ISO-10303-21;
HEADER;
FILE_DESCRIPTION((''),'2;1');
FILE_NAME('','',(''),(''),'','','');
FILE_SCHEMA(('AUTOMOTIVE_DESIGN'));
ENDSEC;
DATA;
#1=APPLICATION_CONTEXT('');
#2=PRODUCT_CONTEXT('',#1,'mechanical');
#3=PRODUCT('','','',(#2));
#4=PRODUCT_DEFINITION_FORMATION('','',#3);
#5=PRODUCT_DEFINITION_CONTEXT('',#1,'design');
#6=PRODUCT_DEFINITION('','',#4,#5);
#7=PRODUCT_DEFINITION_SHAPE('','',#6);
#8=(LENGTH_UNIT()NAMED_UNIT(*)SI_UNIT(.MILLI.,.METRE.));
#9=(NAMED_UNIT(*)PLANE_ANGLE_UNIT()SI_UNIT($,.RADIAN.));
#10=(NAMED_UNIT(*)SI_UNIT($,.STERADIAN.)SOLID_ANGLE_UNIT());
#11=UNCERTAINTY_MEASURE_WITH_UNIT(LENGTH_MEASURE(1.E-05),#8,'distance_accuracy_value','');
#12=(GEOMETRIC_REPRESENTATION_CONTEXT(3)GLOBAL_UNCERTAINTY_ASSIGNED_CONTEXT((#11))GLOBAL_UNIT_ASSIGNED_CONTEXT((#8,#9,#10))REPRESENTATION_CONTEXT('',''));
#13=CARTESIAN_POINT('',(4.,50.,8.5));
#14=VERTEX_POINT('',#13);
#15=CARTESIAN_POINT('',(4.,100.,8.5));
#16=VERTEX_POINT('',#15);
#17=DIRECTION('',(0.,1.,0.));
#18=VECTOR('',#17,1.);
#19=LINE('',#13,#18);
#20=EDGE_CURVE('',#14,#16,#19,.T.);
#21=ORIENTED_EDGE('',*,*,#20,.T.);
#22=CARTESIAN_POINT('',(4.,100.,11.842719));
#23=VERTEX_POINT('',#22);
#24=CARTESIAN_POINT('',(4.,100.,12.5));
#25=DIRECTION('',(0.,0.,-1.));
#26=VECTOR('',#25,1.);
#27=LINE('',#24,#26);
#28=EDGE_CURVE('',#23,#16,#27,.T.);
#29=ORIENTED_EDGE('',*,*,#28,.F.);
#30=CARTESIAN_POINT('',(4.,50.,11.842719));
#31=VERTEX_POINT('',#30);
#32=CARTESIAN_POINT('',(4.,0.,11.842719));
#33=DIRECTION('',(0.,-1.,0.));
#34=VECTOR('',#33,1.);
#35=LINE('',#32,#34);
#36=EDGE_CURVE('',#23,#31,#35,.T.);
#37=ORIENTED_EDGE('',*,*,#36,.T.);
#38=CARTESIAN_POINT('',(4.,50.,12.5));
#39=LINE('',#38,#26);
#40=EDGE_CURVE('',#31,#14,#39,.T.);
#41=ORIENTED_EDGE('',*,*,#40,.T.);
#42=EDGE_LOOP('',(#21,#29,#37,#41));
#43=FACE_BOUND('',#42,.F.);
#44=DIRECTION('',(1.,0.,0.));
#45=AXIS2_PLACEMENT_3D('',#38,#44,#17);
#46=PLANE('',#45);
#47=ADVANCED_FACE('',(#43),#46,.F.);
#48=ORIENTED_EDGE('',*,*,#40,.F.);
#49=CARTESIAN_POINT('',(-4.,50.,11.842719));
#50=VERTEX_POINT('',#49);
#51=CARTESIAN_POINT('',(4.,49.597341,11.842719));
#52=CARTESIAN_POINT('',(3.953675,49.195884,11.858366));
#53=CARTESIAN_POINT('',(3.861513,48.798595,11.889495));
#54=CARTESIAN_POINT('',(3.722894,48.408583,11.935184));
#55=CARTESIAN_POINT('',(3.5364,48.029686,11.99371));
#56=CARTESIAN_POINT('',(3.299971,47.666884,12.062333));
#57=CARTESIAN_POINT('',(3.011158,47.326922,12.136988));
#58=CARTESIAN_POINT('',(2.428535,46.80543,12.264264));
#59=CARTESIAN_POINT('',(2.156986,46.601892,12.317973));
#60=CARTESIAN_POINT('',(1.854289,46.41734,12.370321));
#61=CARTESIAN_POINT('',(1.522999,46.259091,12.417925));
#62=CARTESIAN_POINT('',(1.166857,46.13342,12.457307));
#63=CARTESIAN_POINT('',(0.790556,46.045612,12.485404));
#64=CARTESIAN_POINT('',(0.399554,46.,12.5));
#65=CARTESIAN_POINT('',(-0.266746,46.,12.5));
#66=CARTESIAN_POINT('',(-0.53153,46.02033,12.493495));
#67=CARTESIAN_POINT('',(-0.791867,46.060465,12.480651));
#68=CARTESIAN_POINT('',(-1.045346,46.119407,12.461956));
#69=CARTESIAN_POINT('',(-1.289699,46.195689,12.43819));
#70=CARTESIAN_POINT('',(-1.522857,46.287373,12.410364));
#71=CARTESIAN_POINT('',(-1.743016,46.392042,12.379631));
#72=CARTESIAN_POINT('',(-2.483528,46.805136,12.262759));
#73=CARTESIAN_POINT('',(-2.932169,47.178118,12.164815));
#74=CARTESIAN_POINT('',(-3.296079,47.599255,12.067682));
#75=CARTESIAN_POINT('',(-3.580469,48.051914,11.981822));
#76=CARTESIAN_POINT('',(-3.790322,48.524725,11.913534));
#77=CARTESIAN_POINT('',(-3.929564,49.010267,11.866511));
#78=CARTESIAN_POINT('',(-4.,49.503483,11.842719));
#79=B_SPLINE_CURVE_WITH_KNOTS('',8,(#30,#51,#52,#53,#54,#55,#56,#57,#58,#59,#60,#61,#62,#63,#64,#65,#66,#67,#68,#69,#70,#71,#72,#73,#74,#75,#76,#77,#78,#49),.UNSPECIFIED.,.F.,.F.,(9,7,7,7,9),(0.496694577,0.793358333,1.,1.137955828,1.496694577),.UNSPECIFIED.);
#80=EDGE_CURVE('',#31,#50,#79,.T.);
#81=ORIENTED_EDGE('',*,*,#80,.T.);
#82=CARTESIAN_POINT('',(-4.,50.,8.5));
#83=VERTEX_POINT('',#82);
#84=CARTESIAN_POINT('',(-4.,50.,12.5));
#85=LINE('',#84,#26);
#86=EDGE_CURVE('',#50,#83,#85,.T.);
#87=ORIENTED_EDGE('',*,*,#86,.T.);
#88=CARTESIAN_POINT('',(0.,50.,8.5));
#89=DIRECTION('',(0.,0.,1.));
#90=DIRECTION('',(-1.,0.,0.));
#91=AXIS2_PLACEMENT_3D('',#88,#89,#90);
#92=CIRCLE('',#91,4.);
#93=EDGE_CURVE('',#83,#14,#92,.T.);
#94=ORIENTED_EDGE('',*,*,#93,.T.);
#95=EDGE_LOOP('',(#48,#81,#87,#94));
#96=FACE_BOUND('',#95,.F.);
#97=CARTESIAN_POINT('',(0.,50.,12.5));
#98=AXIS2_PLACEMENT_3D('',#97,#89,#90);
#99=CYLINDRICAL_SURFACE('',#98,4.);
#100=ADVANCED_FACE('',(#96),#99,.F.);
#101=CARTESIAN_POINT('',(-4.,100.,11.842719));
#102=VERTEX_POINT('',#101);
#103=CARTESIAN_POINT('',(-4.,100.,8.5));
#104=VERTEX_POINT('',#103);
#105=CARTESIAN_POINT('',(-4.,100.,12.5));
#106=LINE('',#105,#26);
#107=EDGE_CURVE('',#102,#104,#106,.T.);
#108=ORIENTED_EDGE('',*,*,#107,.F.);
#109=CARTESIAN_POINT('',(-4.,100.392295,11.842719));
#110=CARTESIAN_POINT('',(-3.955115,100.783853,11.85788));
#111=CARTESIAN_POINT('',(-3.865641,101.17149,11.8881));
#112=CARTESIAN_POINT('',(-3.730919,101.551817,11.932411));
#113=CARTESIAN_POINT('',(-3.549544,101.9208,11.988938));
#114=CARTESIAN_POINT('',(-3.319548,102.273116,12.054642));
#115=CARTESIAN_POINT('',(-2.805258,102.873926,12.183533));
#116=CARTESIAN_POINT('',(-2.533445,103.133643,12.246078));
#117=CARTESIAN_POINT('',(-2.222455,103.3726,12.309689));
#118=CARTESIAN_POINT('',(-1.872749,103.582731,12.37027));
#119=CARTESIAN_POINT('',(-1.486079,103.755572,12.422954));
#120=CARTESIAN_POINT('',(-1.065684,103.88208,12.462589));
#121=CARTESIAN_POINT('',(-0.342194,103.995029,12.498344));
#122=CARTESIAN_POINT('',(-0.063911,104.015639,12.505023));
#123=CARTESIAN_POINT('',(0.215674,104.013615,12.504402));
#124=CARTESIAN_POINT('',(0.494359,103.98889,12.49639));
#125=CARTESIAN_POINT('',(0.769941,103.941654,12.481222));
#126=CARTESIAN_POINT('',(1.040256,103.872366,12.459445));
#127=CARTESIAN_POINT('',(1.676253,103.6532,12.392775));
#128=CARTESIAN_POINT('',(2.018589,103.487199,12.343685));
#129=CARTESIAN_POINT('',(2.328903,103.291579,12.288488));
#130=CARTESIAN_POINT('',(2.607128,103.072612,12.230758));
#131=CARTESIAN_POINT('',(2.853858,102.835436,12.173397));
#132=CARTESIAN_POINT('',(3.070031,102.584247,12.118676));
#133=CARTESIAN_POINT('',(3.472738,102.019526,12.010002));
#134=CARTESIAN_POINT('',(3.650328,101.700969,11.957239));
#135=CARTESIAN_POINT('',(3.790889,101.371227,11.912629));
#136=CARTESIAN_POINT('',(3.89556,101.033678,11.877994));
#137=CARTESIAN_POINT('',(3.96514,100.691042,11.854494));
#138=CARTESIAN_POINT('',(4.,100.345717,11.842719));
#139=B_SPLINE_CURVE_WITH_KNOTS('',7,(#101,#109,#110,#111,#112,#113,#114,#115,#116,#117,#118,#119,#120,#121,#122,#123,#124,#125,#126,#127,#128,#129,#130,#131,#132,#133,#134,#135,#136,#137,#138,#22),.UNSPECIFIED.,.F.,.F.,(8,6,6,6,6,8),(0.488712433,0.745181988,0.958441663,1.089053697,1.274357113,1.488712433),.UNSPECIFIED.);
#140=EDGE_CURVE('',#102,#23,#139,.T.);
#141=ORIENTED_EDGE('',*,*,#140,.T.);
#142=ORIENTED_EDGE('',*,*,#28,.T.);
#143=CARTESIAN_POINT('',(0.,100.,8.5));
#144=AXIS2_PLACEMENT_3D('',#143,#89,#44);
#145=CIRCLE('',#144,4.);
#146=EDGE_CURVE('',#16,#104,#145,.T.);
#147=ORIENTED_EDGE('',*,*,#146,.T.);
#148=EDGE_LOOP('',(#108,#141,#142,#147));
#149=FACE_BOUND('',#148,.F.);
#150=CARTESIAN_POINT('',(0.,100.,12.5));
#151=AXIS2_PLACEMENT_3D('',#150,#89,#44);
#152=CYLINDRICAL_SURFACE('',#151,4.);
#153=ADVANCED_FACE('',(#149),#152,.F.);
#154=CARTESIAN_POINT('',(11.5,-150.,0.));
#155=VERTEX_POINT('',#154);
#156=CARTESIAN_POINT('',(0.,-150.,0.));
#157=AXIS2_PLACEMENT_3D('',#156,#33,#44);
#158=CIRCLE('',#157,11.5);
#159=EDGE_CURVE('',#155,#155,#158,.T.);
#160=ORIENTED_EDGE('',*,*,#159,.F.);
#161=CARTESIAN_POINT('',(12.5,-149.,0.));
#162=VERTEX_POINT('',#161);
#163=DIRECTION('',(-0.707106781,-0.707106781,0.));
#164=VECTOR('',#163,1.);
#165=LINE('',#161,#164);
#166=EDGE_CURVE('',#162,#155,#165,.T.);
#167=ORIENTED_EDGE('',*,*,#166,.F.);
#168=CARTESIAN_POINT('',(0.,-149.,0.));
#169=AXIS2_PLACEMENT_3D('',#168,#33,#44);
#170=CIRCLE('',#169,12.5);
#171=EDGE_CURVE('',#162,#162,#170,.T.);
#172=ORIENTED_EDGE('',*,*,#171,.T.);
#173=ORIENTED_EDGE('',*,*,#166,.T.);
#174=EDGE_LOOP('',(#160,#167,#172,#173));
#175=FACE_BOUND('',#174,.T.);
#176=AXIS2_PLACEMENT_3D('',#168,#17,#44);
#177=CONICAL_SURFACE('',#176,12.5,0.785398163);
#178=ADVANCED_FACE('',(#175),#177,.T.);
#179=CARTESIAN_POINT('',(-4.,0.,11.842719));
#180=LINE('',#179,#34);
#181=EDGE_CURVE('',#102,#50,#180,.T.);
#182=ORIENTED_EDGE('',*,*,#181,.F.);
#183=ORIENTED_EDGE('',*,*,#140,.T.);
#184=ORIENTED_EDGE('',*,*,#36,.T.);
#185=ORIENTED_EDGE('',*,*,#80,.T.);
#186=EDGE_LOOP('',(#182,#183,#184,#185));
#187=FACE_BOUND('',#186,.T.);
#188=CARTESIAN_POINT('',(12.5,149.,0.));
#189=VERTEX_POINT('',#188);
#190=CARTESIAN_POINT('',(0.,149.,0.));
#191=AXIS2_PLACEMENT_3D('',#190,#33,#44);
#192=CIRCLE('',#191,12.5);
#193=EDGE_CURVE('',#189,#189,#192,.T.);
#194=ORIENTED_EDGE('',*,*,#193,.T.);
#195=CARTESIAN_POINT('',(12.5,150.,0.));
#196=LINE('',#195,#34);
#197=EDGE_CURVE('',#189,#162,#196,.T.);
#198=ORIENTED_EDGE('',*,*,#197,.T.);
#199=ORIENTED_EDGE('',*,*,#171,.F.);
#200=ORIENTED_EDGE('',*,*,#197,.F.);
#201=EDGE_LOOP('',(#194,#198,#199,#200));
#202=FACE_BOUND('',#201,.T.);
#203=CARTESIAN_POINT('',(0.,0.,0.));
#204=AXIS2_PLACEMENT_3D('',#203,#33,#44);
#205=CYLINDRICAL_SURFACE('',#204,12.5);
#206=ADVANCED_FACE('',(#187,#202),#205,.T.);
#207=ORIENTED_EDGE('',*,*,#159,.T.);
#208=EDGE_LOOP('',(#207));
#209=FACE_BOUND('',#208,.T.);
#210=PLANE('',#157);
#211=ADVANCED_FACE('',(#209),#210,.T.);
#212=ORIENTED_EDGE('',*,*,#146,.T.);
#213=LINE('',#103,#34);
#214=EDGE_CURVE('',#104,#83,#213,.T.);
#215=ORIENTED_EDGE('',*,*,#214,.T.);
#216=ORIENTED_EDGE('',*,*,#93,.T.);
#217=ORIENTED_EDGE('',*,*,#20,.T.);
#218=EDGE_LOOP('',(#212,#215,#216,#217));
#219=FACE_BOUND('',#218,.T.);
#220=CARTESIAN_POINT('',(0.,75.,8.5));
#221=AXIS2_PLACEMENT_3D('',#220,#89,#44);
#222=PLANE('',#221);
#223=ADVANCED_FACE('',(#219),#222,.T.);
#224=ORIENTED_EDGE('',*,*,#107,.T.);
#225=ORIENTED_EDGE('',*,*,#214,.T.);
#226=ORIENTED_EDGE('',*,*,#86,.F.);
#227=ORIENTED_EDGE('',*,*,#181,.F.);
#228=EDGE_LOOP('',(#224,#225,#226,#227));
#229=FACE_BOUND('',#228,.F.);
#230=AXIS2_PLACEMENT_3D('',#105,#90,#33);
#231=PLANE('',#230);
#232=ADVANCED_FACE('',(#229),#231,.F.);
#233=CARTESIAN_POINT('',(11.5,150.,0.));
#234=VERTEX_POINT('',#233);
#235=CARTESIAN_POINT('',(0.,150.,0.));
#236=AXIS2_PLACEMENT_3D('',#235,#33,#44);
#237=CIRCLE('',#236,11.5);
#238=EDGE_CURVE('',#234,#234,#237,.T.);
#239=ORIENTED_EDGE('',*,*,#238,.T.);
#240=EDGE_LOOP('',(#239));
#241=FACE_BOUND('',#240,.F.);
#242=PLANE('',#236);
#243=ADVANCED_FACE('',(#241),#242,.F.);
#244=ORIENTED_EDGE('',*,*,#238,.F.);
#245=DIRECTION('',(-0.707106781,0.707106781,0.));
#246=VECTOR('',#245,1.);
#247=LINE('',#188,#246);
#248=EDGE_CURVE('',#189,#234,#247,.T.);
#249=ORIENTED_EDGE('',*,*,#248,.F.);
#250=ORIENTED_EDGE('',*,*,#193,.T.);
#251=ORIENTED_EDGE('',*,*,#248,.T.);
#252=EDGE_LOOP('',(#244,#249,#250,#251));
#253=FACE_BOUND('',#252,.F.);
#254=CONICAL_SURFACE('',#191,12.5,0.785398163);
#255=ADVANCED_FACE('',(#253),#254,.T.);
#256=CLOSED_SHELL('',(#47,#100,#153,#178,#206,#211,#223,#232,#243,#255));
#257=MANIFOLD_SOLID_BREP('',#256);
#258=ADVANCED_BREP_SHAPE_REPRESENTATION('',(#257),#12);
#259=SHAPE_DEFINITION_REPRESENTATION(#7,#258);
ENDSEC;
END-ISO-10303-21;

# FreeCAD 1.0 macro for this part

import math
import FreeCAD as App
import Part
import Sketcher
from FreeCAD import Vector
Q = App.Units.Quantity


def edges_at(feature, points):
    """Names of the edges that pass closest to the given points."""
    edges = feature.Shape.Edges
    near = lambda p: min(range(len(edges)), key=lambda i: edges[i].distToShape(Part.Vertex(*p))[0])
    return sorted({f"Edge{near(p) + 1}" for p in points})

doc = App.newDocument("Part")
body = doc.addObject("PartDesign::Body", "Body")

# Sketch on XZ plane
sketch1 = body.newObject("Sketcher::SketchObject", "Sketch")
sketch1.AttachmentSupport = (doc.getObject("XZ_Plane"), [""])
sketch1.MapMode = "FlatFace"
sketch1.addGeometry(Part.Circle(Vector(0, 0, 0), Vector(0, 0, 1), 12), False)
sketch1.addConstraint([
    Sketcher.Constraint("Coincident", 0, 3, -1, 1),
    Sketcher.Constraint("Diameter", 0, Q("25 mm")),
])
pad1 = body.newObject("PartDesign::Pad", "Pad")
pad1.Profile = sketch1
pad1.Length = 300
pad1.Midplane = True

# Sketch on XY plane
sketch2 = body.newObject("Sketcher::SketchObject", "Sketch001")
sketch2.AttachmentSupport = (doc.getObject("XY_Plane"), [""])
sketch2.MapMode = "FlatFace"
sketch2.AttachmentOffset = App.Placement(Vector(0, 0, 12.5), App.Rotation())
sketch2.addGeometry([
    Part.LineSegment(Vector(4, 50, 0), Vector(4, 100, 0)),
    Part.ArcOfCircle(Part.Circle(Vector(0, 100, 0), Vector(0, 0, 1), 4), math.radians(0), math.radians(180)),
    Part.LineSegment(Vector(-4, 100, 0), Vector(-4, 50, 0)),
    Part.ArcOfCircle(Part.Circle(Vector(0, 50, 0), Vector(0, 0, 1), 4), math.radians(180), math.radians(360)),
], False)
sketch2.addConstraint([
    Sketcher.Constraint("Tangent", 0, 2, 1, 1),
    Sketcher.Constraint("Tangent", 1, 2, 2, 1),
    Sketcher.Constraint("Tangent", 2, 2, 3, 1),
    Sketcher.Constraint("Tangent", 3, 2, 0, 1),
    Sketcher.Constraint("Vertical", 0),
    Sketcher.Constraint("Vertical", 2),
    Sketcher.Constraint("PointOnObject", 1, 3, -2),
    Sketcher.Constraint("Radius", 1, Q("4 mm")),
    Sketcher.Constraint("DistanceY", 0, 1, 0, 2, Q("50 mm")),
    Sketcher.Constraint("DistanceY", -1, 1, 1, 3, Q("100 mm")),
])
pocket1 = body.newObject("PartDesign::Pocket", "Pocket")
pocket1.Profile = sketch2
pocket1.Length = 4
doc.recompute()

chamfer = body.newObject("PartDesign::Chamfer", "Chamfer")
chamfer.Base = (pocket1, edges_at(pocket1, [(-12.5, 150, 0), (-12.5, -150, 0)]))
chamfer.Size = 1

doc.recompute()
